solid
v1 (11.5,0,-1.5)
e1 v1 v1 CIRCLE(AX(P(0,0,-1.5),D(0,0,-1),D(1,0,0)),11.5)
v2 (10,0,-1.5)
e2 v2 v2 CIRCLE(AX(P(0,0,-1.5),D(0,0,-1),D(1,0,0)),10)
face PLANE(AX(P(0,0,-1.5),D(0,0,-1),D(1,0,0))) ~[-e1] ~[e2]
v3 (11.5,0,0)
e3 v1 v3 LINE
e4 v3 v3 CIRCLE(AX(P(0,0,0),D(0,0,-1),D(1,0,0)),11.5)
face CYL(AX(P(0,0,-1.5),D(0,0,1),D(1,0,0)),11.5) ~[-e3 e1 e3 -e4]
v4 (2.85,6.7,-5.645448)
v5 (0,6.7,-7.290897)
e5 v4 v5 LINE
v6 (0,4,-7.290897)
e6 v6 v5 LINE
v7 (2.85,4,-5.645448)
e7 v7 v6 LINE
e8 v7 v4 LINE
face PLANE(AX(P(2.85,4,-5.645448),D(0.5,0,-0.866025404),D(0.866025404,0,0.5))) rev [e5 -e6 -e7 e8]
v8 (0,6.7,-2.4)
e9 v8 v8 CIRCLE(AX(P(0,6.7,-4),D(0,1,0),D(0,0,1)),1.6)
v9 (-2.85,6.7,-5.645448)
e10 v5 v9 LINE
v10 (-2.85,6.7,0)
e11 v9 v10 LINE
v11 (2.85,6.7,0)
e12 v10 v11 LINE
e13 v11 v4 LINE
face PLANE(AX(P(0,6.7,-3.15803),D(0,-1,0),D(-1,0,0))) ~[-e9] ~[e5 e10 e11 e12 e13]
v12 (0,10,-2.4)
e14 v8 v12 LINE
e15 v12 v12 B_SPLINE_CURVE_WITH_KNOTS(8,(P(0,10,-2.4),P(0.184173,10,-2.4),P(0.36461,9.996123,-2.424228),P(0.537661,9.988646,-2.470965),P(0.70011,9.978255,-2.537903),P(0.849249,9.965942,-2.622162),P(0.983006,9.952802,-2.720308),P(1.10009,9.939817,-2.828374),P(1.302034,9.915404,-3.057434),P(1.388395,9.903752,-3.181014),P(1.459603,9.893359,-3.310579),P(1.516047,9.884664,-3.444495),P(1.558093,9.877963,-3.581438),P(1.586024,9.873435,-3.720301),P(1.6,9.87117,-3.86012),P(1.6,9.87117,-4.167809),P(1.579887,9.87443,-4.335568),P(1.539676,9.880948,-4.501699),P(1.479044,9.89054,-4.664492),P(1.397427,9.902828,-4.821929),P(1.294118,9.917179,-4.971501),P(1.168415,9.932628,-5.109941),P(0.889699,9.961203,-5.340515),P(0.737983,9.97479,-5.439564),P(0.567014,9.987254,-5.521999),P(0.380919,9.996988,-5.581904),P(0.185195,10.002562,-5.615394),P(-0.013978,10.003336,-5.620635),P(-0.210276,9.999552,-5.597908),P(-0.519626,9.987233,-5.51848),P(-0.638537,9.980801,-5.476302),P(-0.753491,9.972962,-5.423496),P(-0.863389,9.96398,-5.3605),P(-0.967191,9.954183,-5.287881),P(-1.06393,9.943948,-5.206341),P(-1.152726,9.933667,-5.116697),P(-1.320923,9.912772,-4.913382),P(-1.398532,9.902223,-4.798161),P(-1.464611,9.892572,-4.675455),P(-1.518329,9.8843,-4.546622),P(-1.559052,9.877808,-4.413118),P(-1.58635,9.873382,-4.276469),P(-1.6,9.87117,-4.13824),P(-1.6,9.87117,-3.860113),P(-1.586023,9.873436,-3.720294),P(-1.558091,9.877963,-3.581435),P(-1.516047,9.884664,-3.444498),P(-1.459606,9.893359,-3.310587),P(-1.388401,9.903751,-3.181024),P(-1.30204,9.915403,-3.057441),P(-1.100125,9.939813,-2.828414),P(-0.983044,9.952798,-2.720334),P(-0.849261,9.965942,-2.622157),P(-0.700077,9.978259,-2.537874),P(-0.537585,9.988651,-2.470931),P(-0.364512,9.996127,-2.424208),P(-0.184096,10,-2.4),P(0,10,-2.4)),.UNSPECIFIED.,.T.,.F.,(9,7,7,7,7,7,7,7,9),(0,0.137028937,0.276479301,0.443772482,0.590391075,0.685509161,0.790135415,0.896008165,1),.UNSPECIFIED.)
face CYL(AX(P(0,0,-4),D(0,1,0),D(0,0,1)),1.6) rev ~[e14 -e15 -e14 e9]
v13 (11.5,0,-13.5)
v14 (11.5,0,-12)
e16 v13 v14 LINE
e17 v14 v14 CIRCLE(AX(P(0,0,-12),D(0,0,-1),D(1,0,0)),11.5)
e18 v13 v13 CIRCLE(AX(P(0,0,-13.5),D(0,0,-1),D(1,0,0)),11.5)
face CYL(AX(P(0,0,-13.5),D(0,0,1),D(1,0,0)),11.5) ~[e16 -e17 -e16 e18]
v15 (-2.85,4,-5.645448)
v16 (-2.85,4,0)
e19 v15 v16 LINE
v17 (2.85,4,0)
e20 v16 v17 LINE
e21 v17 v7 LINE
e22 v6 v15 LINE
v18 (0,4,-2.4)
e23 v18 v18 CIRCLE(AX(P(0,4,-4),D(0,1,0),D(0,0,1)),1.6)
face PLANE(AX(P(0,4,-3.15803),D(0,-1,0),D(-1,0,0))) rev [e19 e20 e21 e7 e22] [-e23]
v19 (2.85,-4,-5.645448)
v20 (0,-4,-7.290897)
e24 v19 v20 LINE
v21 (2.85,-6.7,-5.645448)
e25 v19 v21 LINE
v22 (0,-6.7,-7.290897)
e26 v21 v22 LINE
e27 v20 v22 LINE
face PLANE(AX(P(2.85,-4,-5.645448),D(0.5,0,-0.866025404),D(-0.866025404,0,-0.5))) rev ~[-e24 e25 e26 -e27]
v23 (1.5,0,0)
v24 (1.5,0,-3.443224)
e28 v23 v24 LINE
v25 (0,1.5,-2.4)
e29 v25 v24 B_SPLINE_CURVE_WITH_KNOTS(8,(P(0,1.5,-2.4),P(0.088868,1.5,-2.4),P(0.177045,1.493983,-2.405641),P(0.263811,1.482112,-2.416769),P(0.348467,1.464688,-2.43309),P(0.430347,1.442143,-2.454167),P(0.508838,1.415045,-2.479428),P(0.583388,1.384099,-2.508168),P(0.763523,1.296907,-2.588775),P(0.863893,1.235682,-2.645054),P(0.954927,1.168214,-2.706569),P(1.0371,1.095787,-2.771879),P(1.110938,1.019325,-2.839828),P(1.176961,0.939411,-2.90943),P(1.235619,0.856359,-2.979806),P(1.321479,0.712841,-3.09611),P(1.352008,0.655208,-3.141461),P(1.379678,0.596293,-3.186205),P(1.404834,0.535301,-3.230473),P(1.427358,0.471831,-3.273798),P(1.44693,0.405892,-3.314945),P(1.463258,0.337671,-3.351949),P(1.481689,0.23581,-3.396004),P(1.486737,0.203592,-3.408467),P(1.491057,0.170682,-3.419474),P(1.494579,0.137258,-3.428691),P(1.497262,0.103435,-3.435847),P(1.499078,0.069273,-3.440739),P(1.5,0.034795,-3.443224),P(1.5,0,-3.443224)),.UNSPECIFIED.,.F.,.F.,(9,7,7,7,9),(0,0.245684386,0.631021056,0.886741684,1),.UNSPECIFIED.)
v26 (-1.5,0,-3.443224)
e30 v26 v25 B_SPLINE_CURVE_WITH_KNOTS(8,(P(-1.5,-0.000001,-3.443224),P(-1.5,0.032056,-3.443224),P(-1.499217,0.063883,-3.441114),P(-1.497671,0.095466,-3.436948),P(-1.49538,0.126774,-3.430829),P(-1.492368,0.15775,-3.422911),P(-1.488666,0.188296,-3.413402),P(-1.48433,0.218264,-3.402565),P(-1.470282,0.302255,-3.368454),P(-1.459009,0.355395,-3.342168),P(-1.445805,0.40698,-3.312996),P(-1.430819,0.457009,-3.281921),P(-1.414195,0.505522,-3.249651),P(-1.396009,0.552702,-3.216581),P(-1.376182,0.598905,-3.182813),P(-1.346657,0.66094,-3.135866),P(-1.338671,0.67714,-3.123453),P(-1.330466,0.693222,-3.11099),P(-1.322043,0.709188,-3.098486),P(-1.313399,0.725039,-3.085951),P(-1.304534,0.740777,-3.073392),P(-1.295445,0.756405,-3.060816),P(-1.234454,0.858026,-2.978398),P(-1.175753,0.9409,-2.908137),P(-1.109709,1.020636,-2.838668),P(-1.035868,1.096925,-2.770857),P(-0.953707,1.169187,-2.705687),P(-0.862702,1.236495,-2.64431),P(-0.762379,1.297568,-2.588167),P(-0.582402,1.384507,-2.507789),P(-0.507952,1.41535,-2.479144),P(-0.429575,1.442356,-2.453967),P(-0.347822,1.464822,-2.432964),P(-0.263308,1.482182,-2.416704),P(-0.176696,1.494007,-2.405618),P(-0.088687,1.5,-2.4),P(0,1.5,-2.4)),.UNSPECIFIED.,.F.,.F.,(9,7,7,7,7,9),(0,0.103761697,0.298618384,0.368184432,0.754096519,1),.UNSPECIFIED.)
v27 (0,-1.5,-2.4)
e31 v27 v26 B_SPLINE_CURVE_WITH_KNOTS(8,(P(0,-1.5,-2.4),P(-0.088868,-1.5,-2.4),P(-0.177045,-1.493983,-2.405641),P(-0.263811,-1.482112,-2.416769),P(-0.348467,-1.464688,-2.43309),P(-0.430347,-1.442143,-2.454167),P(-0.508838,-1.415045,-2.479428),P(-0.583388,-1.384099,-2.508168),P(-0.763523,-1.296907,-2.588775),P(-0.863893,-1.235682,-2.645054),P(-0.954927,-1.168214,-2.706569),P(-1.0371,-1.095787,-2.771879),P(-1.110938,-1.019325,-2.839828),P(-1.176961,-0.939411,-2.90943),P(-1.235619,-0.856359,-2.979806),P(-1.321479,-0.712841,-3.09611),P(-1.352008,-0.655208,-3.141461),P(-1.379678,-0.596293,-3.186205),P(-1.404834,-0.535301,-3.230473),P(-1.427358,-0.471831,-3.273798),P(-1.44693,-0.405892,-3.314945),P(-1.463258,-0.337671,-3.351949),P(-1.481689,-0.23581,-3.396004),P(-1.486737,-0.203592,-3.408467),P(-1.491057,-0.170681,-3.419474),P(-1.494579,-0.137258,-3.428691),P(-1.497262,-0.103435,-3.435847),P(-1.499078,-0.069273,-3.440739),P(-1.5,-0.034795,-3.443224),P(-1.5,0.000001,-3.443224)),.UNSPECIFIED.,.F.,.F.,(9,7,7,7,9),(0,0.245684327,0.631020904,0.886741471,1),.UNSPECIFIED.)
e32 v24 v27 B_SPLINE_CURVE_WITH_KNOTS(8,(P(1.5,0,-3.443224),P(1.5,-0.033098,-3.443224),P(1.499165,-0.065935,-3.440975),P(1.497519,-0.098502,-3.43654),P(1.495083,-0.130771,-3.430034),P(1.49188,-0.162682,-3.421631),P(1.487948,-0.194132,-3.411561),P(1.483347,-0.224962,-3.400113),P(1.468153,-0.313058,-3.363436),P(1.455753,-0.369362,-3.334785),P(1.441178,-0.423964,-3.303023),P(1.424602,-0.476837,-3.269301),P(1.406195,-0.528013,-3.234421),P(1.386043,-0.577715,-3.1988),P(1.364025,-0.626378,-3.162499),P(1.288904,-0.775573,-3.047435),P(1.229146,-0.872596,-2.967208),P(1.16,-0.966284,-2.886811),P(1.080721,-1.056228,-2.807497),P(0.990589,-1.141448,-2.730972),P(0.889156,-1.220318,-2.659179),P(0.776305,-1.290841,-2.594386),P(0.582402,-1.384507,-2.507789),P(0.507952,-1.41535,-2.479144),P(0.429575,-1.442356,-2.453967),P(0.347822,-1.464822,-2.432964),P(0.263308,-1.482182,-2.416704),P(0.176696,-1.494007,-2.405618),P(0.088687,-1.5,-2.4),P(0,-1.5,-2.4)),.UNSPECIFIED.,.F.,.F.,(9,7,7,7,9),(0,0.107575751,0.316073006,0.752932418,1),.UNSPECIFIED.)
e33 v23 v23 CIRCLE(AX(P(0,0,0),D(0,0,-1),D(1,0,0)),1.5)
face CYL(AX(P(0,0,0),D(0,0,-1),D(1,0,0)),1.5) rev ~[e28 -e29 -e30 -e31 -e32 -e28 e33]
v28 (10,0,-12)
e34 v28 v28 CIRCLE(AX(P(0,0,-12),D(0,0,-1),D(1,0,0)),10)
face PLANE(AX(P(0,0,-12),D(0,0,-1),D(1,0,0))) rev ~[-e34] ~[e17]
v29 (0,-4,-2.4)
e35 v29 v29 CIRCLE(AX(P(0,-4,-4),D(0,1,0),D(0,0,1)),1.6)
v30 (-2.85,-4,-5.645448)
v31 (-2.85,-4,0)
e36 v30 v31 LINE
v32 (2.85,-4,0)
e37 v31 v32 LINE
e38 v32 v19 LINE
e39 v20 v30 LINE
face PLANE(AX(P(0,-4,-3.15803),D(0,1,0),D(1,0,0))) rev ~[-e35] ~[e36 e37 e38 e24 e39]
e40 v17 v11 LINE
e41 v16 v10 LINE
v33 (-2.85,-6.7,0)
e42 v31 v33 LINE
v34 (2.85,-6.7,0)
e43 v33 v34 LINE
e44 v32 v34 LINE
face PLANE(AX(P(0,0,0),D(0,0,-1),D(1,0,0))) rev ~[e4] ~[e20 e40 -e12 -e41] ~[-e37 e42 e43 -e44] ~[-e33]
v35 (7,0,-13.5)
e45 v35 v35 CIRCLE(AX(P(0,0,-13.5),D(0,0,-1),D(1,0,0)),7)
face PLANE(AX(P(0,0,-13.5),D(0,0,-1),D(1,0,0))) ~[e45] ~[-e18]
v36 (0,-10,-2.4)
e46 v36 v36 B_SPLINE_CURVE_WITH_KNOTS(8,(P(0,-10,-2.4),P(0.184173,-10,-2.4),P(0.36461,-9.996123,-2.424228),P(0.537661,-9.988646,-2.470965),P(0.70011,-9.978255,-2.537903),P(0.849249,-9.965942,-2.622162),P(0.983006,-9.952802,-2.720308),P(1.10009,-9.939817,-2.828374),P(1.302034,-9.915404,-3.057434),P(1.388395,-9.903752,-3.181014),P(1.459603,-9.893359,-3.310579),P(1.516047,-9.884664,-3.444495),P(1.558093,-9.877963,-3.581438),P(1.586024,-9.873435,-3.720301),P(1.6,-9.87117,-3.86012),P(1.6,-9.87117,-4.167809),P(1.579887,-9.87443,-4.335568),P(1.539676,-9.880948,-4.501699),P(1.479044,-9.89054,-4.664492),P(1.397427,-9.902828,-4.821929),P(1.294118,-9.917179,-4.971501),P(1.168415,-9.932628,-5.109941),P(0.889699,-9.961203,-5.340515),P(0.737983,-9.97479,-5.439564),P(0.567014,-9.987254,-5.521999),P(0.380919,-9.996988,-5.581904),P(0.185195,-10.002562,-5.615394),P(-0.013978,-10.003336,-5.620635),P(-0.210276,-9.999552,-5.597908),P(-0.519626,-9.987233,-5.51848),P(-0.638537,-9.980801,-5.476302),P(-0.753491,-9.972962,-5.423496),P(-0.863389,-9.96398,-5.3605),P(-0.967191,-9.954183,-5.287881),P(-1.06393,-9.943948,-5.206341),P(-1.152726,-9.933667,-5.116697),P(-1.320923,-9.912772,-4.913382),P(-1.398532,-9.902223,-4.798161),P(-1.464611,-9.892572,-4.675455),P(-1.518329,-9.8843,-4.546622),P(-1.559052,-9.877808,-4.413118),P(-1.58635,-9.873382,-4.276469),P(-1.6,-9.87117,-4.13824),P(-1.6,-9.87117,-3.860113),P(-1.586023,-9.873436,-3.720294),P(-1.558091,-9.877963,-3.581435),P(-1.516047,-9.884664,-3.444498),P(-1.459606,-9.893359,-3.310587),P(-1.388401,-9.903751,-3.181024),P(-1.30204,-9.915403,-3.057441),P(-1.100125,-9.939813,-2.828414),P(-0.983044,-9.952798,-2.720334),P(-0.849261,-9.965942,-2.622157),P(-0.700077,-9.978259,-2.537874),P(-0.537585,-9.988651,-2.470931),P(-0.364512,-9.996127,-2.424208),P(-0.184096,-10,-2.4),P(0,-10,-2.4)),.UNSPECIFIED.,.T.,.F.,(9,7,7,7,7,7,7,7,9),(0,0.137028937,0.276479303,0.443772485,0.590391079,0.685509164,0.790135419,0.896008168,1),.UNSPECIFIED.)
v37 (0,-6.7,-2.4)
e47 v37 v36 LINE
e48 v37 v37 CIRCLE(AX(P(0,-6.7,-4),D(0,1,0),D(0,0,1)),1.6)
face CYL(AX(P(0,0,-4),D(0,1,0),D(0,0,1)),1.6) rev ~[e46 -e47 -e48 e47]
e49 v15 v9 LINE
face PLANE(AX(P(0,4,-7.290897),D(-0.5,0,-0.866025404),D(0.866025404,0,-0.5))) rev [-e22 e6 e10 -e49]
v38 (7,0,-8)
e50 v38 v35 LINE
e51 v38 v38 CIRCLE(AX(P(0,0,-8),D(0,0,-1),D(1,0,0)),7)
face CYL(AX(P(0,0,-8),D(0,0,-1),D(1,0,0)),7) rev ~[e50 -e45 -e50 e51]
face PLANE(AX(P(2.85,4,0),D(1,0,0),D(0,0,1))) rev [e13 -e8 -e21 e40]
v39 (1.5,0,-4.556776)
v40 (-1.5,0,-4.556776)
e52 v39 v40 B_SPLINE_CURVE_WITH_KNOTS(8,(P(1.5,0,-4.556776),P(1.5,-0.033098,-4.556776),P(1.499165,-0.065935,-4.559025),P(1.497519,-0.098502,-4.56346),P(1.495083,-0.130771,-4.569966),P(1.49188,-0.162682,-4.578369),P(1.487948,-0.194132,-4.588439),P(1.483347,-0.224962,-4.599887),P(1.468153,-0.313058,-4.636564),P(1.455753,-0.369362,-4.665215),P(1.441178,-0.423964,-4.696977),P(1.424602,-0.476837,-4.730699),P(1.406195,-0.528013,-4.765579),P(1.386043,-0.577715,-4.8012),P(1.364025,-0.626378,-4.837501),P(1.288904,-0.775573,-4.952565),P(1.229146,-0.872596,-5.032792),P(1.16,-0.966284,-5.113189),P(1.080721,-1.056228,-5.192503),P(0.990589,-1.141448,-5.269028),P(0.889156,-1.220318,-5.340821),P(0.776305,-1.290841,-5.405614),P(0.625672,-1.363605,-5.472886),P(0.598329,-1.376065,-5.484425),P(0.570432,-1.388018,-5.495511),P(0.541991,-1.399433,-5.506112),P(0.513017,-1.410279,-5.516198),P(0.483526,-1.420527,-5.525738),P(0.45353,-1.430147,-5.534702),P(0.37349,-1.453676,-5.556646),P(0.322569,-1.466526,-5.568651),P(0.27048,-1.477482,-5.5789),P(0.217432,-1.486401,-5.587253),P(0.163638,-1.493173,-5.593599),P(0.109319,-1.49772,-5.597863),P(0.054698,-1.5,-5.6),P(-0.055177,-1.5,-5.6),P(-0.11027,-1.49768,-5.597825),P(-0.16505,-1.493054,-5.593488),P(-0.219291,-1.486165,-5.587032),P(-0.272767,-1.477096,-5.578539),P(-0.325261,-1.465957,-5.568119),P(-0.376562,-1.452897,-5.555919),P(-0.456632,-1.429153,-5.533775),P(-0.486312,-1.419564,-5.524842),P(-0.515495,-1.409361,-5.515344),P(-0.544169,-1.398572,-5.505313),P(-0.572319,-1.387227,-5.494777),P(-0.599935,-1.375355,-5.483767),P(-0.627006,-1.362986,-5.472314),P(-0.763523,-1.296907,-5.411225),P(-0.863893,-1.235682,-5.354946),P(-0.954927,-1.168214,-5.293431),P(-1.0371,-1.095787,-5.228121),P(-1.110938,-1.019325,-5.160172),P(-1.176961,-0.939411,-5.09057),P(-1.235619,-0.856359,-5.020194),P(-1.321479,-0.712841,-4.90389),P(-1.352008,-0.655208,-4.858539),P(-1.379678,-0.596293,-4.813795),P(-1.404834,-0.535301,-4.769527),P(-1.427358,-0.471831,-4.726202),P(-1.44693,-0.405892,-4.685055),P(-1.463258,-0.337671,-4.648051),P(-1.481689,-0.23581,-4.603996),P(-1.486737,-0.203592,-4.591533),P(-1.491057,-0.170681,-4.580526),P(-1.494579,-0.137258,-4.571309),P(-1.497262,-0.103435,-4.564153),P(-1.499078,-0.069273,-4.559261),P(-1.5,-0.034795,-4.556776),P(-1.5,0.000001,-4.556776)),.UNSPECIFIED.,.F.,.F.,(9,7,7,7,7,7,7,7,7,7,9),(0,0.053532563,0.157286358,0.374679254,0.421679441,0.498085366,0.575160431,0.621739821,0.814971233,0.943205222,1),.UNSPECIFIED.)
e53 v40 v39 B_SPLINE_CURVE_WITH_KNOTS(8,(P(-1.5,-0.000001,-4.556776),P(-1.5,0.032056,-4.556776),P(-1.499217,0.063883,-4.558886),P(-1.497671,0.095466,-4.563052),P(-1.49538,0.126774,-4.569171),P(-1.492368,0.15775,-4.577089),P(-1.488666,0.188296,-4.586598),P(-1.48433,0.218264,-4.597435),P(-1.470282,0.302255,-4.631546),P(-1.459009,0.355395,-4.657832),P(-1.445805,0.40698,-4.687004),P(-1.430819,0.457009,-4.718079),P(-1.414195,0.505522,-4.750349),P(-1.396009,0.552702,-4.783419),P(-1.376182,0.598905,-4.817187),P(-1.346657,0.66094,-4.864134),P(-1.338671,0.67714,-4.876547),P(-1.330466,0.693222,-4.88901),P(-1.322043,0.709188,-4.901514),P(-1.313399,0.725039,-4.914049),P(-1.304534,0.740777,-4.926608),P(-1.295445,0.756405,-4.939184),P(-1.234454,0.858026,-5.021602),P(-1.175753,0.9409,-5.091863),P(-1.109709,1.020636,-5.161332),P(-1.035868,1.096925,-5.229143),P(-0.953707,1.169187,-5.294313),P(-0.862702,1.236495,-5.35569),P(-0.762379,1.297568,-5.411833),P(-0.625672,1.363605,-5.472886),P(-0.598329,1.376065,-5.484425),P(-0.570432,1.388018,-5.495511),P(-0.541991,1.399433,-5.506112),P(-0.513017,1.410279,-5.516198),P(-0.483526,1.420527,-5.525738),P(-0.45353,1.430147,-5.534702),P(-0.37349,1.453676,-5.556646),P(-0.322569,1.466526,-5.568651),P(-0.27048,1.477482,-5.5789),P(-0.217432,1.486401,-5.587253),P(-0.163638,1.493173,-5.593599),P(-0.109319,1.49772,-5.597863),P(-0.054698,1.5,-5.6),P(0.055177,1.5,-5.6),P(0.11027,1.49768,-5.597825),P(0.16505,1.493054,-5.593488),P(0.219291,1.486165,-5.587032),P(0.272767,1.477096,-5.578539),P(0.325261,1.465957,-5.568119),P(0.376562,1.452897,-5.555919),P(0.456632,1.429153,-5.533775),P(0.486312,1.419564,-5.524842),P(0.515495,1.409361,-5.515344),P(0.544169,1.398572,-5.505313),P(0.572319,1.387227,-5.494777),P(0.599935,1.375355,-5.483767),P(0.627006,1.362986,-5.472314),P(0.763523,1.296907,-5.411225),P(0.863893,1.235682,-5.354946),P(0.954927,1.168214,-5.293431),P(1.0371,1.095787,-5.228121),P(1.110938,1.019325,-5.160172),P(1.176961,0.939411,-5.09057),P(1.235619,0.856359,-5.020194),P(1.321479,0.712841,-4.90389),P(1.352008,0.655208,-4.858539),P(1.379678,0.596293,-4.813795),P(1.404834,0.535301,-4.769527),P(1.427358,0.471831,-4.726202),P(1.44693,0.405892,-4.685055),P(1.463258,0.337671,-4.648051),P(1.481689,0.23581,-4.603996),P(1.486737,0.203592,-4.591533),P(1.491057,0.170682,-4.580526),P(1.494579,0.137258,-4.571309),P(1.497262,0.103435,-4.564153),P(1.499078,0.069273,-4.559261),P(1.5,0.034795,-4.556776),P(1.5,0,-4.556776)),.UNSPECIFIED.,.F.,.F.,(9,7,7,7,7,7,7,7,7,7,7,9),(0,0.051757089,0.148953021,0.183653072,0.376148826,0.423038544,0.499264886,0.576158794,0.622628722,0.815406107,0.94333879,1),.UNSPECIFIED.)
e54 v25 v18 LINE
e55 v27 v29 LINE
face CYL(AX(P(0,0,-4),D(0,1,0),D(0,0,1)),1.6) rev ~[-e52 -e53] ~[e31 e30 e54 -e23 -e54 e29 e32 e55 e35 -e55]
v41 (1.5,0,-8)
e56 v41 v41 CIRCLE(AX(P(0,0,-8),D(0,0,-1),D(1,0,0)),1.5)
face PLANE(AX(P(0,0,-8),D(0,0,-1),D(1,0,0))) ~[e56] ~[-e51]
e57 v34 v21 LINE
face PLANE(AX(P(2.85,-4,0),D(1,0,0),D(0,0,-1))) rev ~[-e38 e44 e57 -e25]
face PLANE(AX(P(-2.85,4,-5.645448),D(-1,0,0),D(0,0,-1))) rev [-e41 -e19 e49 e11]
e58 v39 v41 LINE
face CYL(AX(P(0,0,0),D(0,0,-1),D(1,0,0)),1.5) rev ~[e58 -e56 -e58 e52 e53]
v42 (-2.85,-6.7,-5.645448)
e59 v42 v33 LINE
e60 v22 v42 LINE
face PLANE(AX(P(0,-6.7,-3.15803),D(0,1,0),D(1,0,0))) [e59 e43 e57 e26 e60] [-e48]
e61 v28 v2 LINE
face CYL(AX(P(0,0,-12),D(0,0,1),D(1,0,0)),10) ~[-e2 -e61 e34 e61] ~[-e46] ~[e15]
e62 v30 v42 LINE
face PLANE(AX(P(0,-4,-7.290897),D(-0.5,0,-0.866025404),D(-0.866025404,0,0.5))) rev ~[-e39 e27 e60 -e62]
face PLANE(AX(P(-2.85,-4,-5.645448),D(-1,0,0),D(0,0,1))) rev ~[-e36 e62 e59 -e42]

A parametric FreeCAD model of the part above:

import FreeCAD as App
import Part
import Sketcher

V = App.Vector
Q = App.Units.Quantity

doc = App.newDocument("Part")
body = doc.addObject("PartDesign::Body", "Body")

sketch1 = doc.addObject("Sketcher::SketchObject", "Sketch")
body.addObject(sketch1)
sketch1.AttachmentSupport = (doc.YZ_Plane, [""])
sketch1.MapMode = "FlatFace"
sketch1.addGeometry([
    Part.LineSegment(V(11.5, 0, 0), V(1.5, 0, 0)),
    Part.LineSegment(V(1.5, 0, 0), V(1.5, -8, 0)),
    Part.LineSegment(V(1.5, -8, 0), V(7, -8, 0)),
    Part.LineSegment(V(7, -8, 0), V(7, -13.5, 0)),
    Part.LineSegment(V(7, -13.5, 0), V(11.5, -13.5, 0)),
    Part.LineSegment(V(11.5, -13.5, 0), V(11.5, -12, 0)),
    Part.LineSegment(V(11.5, -12, 0), V(10, -12, 0)),
    Part.LineSegment(V(10, -12, 0), V(10, -1.5, 0)),
    Part.LineSegment(V(10, -1.5, 0), V(11.5, -1.5, 0)),
    Part.LineSegment(V(11.5, -1.5, 0), V(11.5, 0, 0)),
], False)
sketch1.addConstraint([
    Sketcher.Constraint("Coincident", 0, 2, 1, 1),
    Sketcher.Constraint("Coincident", 1, 2, 2, 1),
    Sketcher.Constraint("Coincident", 2, 2, 3, 1),
    Sketcher.Constraint("Coincident", 3, 2, 4, 1),
    Sketcher.Constraint("Coincident", 4, 2, 5, 1),
    Sketcher.Constraint("Coincident", 5, 2, 6, 1),
    Sketcher.Constraint("Coincident", 6, 2, 7, 1),
    Sketcher.Constraint("Coincident", 7, 2, 8, 1),
    Sketcher.Constraint("Coincident", 8, 2, 9, 1),
    Sketcher.Constraint("Coincident", 9, 2, 0, 1),
    Sketcher.Constraint("Horizontal", 0),
    Sketcher.Constraint("Vertical", 1),
    Sketcher.Constraint("Horizontal", 2),
    Sketcher.Constraint("Vertical", 3),
    Sketcher.Constraint("Horizontal", 4),
    Sketcher.Constraint("Vertical", 5),
    Sketcher.Constraint("Horizontal", 6),
    Sketcher.Constraint("Vertical", 7),
    Sketcher.Constraint("Horizontal", 8),
    Sketcher.Constraint("Vertical", 9),
    Sketcher.Constraint("PointOnObject", 0, 2, -1),
    Sketcher.Constraint("Vertical", 5, 2, 8, 2),
    Sketcher.Constraint("Equal", 2, 3),
    Sketcher.Constraint("Equal", 8, 5),
    Sketcher.Constraint("Equal", 5, 9),
    Sketcher.Constraint("DistanceX", 0, 2, 0, 1, Q("10 mm")),
    Sketcher.Constraint("DistanceY", 1, 2, 1, 1, Q("8 mm")),
    Sketcher.Constraint("DistanceX", 2, 1, 2, 2, Q("5.5 mm")),
    Sketcher.Constraint("DistanceX", 6, 2, 6, 1, Q("1.5 mm")),
    Sketcher.Constraint("DistanceX", -1, 1, 2, 2, Q("7 mm")),
])
revolution = doc.addObject("PartDesign::Revolution", "Revolution")
body.addObject(revolution)
revolution.Profile = sketch1
revolution.ReferenceAxis = (sketch1, ["V_Axis"])
revolution.Angle = 360

sketch2 = doc.addObject("Sketcher::SketchObject", "Sketch001")
body.addObject(sketch2)
sketch2.AttachmentSupport = (doc.XZ_Plane, [""])
sketch2.MapMode = "FlatFace"
sketch2.addGeometry(Part.Circle(V(0, -4, 0), V(0, 0, 1), 1.6), False)
sketch2.addConstraint([
    Sketcher.Constraint("PointOnObject", 0, 3, -2),
    Sketcher.Constraint("Diameter", 0, Q("3.2 mm")),
    Sketcher.Constraint("DistanceY", 0, 3, -1, 1, Q("4 mm")),
])
pocket1 = doc.addObject("PartDesign::Pocket", "Pocket")
body.addObject(pocket1)
pocket1.Profile = sketch2
pocket1.Type = "ThroughAll"
pocket1.Reversed = True

sketch3 = doc.addObject("Sketcher::SketchObject", "Sketch002")
body.addObject(sketch3)
sketch3.AttachmentSupport = (doc.XZ_Plane, [""])
sketch3.MapMode = "FlatFace"
sketch3.AttachmentOffset = App.Placement(V(0, 0, 4), App.Rotation())
sketch3.addGeometry([
    Part.LineSegment(V(-2.9, 0, 0), V(2.9, 0, 0)),
    Part.LineSegment(V(2.9, 0, 0), V(2.9, -5.6, 0)),
    Part.LineSegment(V(2.9, -5.6, 0), V(0, -7.3, 0)),
    Part.LineSegment(V(0, -7.3, 0), V(-2.9, -5.6, 0)),
    Part.LineSegment(V(-2.9, -5.6, 0), V(-2.9, 0, 0)),
    Part.Circle(V(0, -4, 0), V(0, 0, 1), 1.6),
], False)
sketch3.addConstraint([
    Sketcher.Constraint("Coincident", 0, 2, 1, 1),
    Sketcher.Constraint("Coincident", 1, 2, 2, 1),
    Sketcher.Constraint("Coincident", 2, 2, 3, 1),
    Sketcher.Constraint("Coincident", 3, 2, 4, 1),
    Sketcher.Constraint("Coincident", 4, 2, 0, 1),
    Sketcher.Constraint("Horizontal", 0),
    Sketcher.Constraint("Vertical", 1),
    Sketcher.Constraint("Vertical", 4),
    Sketcher.Constraint("Symmetric", 0, 2, 4, 2, -1, 1),
    Sketcher.Constraint("PointOnObject", 5, 3, -2),
    Sketcher.Constraint("PointOnObject", 2, 2, -2),
    Sketcher.Constraint("Horizontal", 1, 2, 3, 2),
    Sketcher.Constraint("Diameter", 5, Q("3.2 mm")),
    Sketcher.Constraint("Angle", 2, Q("-150 deg")),
    Sketcher.Constraint("DistanceX", 0, 1, 0, 2, Q("5.7 mm")),
    Sketcher.Constraint("DistanceY", 5, 3, -1, 1, Q("4 mm")),
    Sketcher.Constraint("DistanceY", 1, 2, 1, 1, Q("5.645448 mm")),
])
pocket2 = doc.addObject("PartDesign::Pocket", "Pocket001")
body.addObject(pocket2)
pocket2.Profile = sketch3
pocket2.Length = 2.7
pocket2.Reversed = True
doc.recompute()

mirrored = doc.addObject("PartDesign::Mirrored", "Mirrored")
body.addObject(mirrored)
mirrored.Originals = [pocket1, pocket2]
mirrored.MirrorPlane = (doc.XZ_Plane, [""])
body.Tip = mirrored

doc.recompute()
